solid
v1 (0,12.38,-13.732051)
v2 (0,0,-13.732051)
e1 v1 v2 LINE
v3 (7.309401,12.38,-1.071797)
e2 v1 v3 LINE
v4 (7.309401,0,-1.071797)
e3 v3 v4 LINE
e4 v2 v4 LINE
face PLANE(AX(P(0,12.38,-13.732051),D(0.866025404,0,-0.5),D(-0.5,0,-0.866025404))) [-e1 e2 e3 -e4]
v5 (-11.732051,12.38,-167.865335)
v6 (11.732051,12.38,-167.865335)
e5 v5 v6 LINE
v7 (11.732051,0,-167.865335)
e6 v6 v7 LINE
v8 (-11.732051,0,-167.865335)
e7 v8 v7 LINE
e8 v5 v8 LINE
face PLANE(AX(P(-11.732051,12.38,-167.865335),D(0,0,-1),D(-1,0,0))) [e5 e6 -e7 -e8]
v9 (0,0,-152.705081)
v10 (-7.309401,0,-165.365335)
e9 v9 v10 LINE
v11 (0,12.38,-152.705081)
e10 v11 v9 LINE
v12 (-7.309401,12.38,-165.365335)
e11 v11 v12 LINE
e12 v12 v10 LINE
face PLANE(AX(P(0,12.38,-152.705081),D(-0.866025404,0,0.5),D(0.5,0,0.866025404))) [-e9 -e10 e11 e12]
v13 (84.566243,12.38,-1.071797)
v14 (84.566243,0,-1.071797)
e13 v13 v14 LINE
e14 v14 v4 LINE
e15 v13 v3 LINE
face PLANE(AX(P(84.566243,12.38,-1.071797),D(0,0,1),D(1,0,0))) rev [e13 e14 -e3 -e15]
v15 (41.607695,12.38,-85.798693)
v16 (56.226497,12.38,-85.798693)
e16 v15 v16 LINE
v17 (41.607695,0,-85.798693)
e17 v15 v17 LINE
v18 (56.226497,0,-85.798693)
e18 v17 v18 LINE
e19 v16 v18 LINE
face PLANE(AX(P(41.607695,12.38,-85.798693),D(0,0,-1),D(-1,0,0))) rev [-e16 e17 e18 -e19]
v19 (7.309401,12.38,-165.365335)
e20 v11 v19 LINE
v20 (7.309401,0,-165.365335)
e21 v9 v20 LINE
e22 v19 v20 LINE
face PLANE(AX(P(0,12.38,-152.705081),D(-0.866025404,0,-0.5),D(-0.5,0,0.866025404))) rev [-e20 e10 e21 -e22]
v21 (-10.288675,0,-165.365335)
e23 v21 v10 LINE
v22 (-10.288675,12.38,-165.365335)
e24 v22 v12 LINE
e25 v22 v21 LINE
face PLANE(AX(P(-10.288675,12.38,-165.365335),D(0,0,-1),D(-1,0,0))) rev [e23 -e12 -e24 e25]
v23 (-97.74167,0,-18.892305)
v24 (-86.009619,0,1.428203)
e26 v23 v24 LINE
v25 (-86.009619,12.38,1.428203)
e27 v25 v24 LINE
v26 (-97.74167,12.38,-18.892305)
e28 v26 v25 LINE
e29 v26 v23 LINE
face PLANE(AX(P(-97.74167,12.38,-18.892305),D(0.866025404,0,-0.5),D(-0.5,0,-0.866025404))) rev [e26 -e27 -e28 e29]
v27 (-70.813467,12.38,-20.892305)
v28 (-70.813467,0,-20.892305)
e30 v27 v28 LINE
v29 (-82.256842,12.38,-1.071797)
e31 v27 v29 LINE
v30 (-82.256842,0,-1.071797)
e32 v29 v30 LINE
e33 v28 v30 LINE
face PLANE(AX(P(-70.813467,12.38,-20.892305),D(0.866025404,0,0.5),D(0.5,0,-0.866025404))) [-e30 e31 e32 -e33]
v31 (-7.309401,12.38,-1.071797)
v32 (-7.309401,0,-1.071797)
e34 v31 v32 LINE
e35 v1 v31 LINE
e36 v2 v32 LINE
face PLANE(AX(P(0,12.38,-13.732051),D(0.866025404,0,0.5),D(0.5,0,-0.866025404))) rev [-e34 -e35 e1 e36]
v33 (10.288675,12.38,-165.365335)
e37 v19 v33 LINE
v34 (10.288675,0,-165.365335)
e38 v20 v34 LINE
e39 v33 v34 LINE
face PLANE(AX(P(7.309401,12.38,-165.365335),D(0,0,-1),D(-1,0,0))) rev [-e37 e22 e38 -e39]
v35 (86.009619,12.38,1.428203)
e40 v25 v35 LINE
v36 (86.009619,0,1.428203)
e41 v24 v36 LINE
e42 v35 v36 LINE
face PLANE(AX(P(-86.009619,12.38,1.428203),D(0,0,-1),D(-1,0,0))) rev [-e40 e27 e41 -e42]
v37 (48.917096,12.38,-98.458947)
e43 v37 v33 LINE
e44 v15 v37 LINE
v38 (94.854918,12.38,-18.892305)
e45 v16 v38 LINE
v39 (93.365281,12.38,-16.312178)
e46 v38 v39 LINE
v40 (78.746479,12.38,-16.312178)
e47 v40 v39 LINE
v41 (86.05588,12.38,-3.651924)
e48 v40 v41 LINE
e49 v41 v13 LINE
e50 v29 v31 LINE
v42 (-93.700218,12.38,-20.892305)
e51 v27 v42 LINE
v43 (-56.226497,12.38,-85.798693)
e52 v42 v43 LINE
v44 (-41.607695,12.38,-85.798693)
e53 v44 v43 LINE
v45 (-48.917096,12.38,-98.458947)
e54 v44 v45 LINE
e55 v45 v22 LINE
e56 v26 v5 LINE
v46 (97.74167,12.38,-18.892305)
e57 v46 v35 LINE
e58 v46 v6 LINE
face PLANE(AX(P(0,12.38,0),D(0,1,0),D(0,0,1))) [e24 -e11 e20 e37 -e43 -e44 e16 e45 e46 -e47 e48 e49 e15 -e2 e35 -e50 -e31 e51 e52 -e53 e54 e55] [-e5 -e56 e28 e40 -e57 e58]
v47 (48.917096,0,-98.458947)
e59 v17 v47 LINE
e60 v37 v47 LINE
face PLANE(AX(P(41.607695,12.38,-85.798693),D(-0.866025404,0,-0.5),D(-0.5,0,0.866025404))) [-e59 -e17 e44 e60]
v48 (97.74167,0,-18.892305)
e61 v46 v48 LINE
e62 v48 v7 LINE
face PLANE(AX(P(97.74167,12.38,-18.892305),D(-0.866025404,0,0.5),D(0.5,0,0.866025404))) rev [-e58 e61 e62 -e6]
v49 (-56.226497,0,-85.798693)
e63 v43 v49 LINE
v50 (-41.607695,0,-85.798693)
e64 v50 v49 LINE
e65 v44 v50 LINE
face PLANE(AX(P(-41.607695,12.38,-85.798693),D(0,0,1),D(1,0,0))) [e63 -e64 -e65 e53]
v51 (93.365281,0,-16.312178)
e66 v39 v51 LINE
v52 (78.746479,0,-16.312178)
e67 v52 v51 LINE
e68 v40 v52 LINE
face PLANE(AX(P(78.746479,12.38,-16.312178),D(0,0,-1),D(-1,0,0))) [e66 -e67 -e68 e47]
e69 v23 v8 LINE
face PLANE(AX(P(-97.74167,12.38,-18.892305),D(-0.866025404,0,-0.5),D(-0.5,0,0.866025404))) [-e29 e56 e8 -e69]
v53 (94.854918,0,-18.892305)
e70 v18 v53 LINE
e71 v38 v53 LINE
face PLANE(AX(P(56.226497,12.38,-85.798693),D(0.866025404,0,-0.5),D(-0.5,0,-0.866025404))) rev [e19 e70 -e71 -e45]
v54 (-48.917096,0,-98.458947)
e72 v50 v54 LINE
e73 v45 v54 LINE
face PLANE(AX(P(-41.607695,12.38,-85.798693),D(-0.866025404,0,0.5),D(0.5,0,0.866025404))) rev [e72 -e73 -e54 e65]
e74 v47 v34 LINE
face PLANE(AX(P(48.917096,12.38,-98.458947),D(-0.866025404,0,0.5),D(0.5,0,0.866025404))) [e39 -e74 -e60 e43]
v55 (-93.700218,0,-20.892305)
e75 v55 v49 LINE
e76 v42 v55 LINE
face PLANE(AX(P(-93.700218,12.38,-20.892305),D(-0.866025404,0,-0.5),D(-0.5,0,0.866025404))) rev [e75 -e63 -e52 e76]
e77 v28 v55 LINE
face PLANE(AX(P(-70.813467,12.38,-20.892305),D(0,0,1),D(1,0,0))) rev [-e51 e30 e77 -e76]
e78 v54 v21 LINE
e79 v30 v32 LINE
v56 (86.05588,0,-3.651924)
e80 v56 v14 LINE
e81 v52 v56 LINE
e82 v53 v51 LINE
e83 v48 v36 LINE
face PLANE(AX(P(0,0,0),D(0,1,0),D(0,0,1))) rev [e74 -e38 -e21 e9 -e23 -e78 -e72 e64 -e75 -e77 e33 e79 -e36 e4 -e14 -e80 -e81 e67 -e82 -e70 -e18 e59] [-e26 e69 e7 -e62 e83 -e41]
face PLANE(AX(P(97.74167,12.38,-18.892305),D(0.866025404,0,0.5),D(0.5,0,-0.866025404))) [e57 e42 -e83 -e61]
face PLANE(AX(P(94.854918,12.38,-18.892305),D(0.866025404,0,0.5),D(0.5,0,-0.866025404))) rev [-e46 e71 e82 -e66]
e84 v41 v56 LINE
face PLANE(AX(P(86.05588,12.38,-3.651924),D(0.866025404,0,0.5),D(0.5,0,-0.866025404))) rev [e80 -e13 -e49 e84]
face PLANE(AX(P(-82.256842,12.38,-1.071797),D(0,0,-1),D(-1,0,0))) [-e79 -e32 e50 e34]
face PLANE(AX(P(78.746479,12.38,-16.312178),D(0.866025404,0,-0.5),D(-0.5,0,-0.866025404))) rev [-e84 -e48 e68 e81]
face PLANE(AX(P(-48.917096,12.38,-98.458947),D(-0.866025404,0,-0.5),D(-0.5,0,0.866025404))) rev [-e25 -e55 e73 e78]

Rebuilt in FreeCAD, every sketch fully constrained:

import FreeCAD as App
import Part
import Sketcher
Q = App.Units.Quantity

doc = App.newDocument("Part")
params = doc.addObject("Spreadsheet::Sheet", "Params")
for row, (alias, value) in enumerate([
    ("pad1_length", "12.38 mm"),
], start=1):
    params.set(f"A{row}", alias)
    params.set(f"B{row}", "=" + value)
    params.setAlias(f"B{row}", alias)

body = doc.addObject("PartDesign::Body", "Body")

# Sketch on XZ plane
sketch1 = body.newObject("Sketcher::SketchObject", "Sketch")
sketch1.AttachmentSupport = (doc.getObject("XZ_Plane"), [""])
sketch1.MapMode = "FlatFace"
sketch1.addGeometry([
    Part.LineSegment(App.Vector(11.732051, -167.865335, 0), App.Vector(-11.732051, -167.865335, 0)),  # 0
    Part.LineSegment(App.Vector(-11.732051, -167.865335, 0), App.Vector(-97.74167, -18.892305, 0)),  # 1
    Part.LineSegment(App.Vector(-97.74167, -18.892305, 0), App.Vector(-86.009619, 1.428203, 0)),  # 2
    Part.LineSegment(App.Vector(-86.009619, 1.428203, 0), App.Vector(86.009619, 1.428203, 0)),  # 3
    Part.LineSegment(App.Vector(86.009619, 1.428203, 0), App.Vector(97.74167, -18.892305, 0)),  # 4
    Part.LineSegment(App.Vector(97.74167, -18.892305, 0), App.Vector(11.732051, -167.865335, 0)),  # 5
    Part.LineSegment(App.Vector(41.607695, -85.798693, 0), App.Vector(56.226497, -85.798693, 0)),  # 6
    Part.LineSegment(App.Vector(56.226497, -85.798693, 0), App.Vector(94.854918, -18.892305, 0)),  # 7
    Part.LineSegment(App.Vector(94.854918, -18.892305, 0), App.Vector(93.365281, -16.312178, 0)),  # 8
    Part.LineSegment(App.Vector(93.365281, -16.312178, 0), App.Vector(78.746479, -16.312178, 0)),  # 9
    Part.LineSegment(App.Vector(78.746479, -16.312178, 0), App.Vector(86.05588, -3.651924, 0)),  # 10
    Part.LineSegment(App.Vector(86.05588, -3.651924, 0), App.Vector(84.566243, -1.071797, 0)),  # 11
    Part.LineSegment(App.Vector(84.566243, -1.071797, 0), App.Vector(7.309401, -1.071797, 0)),  # 12
    Part.LineSegment(App.Vector(7.309401, -1.071797, 0), App.Vector(0, -13.732051, 0)),  # 13
    Part.LineSegment(App.Vector(0, -13.732051, 0), App.Vector(-7.309401, -1.071797, 0)),  # 14
    Part.LineSegment(App.Vector(-7.309401, -1.071797, 0), App.Vector(-82.256842, -1.071797, 0)),  # 15
    Part.LineSegment(App.Vector(-82.256842, -1.071797, 0), App.Vector(-70.813467, -20.892305, 0)),  # 16
    Part.LineSegment(App.Vector(-70.813467, -20.892305, 0), App.Vector(-93.700218, -20.892305, 0)),  # 17
    Part.LineSegment(App.Vector(-93.700218, -20.892305, 0), App.Vector(-56.226497, -85.798693, 0)),  # 18
    Part.LineSegment(App.Vector(-56.226497, -85.798693, 0), App.Vector(-41.607695, -85.798693, 0)),  # 19
    Part.LineSegment(App.Vector(-41.607695, -85.798693, 0), App.Vector(-48.917096, -98.458947, 0)),  # 20
    Part.LineSegment(App.Vector(-48.917096, -98.458947, 0), App.Vector(-10.288675, -165.365335, 0)),  # 21
    Part.LineSegment(App.Vector(-10.288675, -165.365335, 0), App.Vector(-7.309401, -165.365335, 0)),  # 22
    Part.LineSegment(App.Vector(-7.309401, -165.365335, 0), App.Vector(0, -152.705081, 0)),  # 23
    Part.LineSegment(App.Vector(0, -152.705081, 0), App.Vector(7.309401, -165.365335, 0)),  # 24
    Part.LineSegment(App.Vector(7.309401, -165.365335, 0), App.Vector(10.288675, -165.365335, 0)),  # 25
    Part.LineSegment(App.Vector(10.288675, -165.365335, 0), App.Vector(48.917096, -98.458947, 0)),  # 26
    Part.LineSegment(App.Vector(48.917096, -98.458947, 0), App.Vector(41.607695, -85.798693, 0)),  # 27
], False)
sketch1.addConstraint([
    Sketcher.Constraint("Coincident", 0, 2, 1, 1),
    Sketcher.Constraint("Coincident", 1, 2, 2, 1),
    Sketcher.Constraint("Coincident", 2, 2, 3, 1),
    Sketcher.Constraint("Coincident", 3, 2, 4, 1),
    Sketcher.Constraint("Coincident", 4, 2, 5, 1),
    Sketcher.Constraint("Coincident", 5, 2, 0, 1),
    Sketcher.Constraint("Coincident", 6, 2, 7, 1),
    Sketcher.Constraint("Coincident", 7, 2, 8, 1),
    Sketcher.Constraint("Coincident", 8, 2, 9, 1),
    Sketcher.Constraint("Coincident", 9, 2, 10, 1),
    Sketcher.Constraint("Coincident", 10, 2, 11, 1),
    Sketcher.Constraint("Coincident", 11, 2, 12, 1),
    Sketcher.Constraint("Coincident", 12, 2, 13, 1),
    Sketcher.Constraint("Coincident", 13, 2, 14, 1),
    Sketcher.Constraint("Coincident", 14, 2, 15, 1),
    Sketcher.Constraint("Coincident", 15, 2, 16, 1),
    Sketcher.Constraint("Coincident", 16, 2, 17, 1),
    Sketcher.Constraint("Coincident", 17, 2, 18, 1),
    Sketcher.Constraint("Coincident", 18, 2, 19, 1),
    Sketcher.Constraint("Coincident", 19, 2, 20, 1),
    Sketcher.Constraint("Coincident", 20, 2, 21, 1),
    Sketcher.Constraint("Coincident", 21, 2, 22, 1),
    Sketcher.Constraint("Coincident", 22, 2, 23, 1),
    Sketcher.Constraint("Coincident", 23, 2, 24, 1),
    Sketcher.Constraint("Coincident", 24, 2, 25, 1),
    Sketcher.Constraint("Coincident", 25, 2, 26, 1),
    Sketcher.Constraint("Coincident", 26, 2, 27, 1),
    Sketcher.Constraint("Coincident", 27, 2, 6, 1),
    Sketcher.Constraint("Horizontal", 0),
    Sketcher.Constraint("Horizontal", 3),
    Sketcher.Constraint("Horizontal", 6),
    Sketcher.Constraint("Horizontal", 9),
    Sketcher.Constraint("Horizontal", 12),
    Sketcher.Constraint("Horizontal", 15),
    Sketcher.Constraint("Horizontal", 17),
    Sketcher.Constraint("Horizontal", 19),
    Sketcher.Constraint("Horizontal", 22),
    Sketcher.Constraint("Horizontal", 25),
    Sketcher.Constraint("Symmetric", 1, 2, 4, 2, -2),
    Sketcher.Constraint("Symmetric", 12, 2, 14, 2, -2),
    Sketcher.Constraint("Symmetric", 6, 2, 18, 2, -2),
    Sketcher.Constraint("Symmetric", 22, 2, 24, 2, -2),
    Sketcher.Constraint("Symmetric", 20, 2, 26, 2, -2),
    Sketcher.Constraint("PointOnObject", 13, 2, -2),
    Sketcher.Constraint("PointOnObject", 23, 2, -2),
    Sketcher.Constraint("Parallel", 1, 4),
    Sketcher.Constraint("Parallel", 2, 5),
    Sketcher.Constraint("Parallel", 5, 7),
    Sketcher.Constraint("Parallel", 4, 8),
    Sketcher.Constraint("Parallel", 7, 10),
    Sketcher.Constraint("Parallel", 8, 11),
    Sketcher.Constraint("Parallel", 10, 13),
    Sketcher.Constraint("Parallel", 11, 14),
    Sketcher.Constraint("Parallel", 14, 16),
    Sketcher.Constraint("Parallel", 16, 18),
    Sketcher.Constraint("Parallel", 13, 20),
    Sketcher.Constraint("Parallel", 18, 21),
    Sketcher.Constraint("Parallel", 20, 23),
    Sketcher.Constraint("Parallel", 23, 26),
    Sketcher.Constraint("Parallel", 24, 27),
    Sketcher.Constraint("Horizontal", 4, 2, 7, 2),
    Sketcher.Constraint("Vertical", 14, 2, 22, 2),
    Sketcher.Constraint("Equal", 6, 9),
    Sketcher.Constraint("Equal", 8, 11),
    Sketcher.Constraint("Equal", 10, 13),
    Sketcher.Constraint("Equal", 14, 20),
    Sketcher.Constraint("Equal", 7, 21),
    Sketcher.Constraint("Angle", 1, Q("120 deg")),
    Sketcher.Constraint("DistanceY", 16, 2, 1, 2, 2.0),
    Sketcher.Constraint("DistanceY", 11, 2, 3, 2, 2.5),
    Sketcher.Constraint("DistanceY", 0, 2, 21, 2, 2.5),
    Sketcher.Constraint("DistanceX", 0, 2, 0, 1, 23.464102),
    Sketcher.Constraint("Distance", 2, 23.464102),
    Sketcher.Constraint("DistanceX", 15, 2, 15, 1, 74.947441),
    Sketcher.Constraint("DistanceX", 17, 2, 17, 1, 22.886751),
    Sketcher.Constraint("DistanceX", -1, 1, 12, 2, 7.309401),
    Sketcher.Constraint("DistanceX", 3, 2, 7, 2, 8.845299),
    Sketcher.Constraint("DistanceX", 10, 2, 8, 2, 7.309401),
    Sketcher.Constraint("DistanceY", 13, 2, -1, 1, 13.732051),
])
pad1 = body.newObject("PartDesign::Pad", "Pad")
pad1.Profile = sketch1
pad1.setExpression("Length", "Params.pad1_length")
pad1.Reversed = True

doc.recompute()
